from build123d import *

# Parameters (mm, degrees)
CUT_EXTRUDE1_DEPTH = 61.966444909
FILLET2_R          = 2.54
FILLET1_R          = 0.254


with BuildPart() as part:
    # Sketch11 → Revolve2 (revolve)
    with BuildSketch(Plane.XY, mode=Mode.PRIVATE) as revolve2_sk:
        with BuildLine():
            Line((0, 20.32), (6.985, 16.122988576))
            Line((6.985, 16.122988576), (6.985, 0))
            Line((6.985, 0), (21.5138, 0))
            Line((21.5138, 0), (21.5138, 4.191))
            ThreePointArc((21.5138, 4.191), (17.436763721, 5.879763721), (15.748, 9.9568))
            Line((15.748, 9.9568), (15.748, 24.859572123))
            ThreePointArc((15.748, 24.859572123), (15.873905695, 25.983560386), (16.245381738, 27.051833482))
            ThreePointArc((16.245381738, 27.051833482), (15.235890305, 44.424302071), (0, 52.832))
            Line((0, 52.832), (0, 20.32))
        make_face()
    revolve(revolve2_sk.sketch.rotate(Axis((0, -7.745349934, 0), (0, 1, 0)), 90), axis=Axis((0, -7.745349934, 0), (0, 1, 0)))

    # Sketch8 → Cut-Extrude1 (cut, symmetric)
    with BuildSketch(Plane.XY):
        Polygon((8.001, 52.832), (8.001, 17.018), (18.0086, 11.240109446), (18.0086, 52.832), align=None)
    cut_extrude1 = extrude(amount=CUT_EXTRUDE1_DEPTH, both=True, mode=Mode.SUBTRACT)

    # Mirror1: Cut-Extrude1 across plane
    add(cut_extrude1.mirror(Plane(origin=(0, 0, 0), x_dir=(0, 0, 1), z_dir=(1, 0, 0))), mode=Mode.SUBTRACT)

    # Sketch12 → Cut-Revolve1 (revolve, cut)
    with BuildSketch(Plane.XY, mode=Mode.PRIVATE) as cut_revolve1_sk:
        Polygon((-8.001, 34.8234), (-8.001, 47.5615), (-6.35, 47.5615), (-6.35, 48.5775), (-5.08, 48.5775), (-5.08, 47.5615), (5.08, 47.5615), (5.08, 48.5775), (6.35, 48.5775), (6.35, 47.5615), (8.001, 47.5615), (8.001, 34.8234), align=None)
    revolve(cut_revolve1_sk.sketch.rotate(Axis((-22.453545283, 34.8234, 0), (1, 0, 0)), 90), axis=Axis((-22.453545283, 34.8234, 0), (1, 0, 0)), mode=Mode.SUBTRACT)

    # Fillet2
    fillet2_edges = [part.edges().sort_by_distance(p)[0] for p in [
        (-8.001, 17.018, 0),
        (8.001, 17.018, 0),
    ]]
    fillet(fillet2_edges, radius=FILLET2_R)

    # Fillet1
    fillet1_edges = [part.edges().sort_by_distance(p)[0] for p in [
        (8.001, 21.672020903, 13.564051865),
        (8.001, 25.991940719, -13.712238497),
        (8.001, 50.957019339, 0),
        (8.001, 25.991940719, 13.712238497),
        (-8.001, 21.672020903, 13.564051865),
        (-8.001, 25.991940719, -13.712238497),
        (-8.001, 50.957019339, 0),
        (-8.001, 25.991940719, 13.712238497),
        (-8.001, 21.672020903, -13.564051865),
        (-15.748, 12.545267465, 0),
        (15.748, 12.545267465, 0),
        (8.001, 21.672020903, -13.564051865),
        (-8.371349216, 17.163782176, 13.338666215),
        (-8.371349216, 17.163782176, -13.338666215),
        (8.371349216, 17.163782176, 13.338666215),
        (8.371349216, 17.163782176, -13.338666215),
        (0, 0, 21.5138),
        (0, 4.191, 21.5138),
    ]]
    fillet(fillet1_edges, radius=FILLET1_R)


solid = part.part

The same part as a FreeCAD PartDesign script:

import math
import FreeCAD as App
import Part
import Sketcher
Q = App.Units.Quantity


def edges_at(feature, points):
    """Names of the edges that pass closest to the given points."""
    edges = feature.Shape.Edges
    near = lambda p: min(range(len(edges)), key=lambda i: edges[i].distToShape(Part.Vertex(*p))[0])
    return sorted({f"Edge{near(p) + 1}" for p in points})

doc = App.newDocument("Part")
body = doc.addObject("PartDesign::Body", "Body")

sketch1 = body.newObject("Sketcher::SketchObject", "Sketch")
sketch1.AttachmentSupport = (doc.getObject("XY_Plane"), [""])
sketch1.MapMode = "FlatFace"
sketch1.addGeometry([
    Part.LineSegment(App.Vector(0, 20.32, 0), App.Vector(6.985, 16.122989, 0)),
    Part.LineSegment(App.Vector(6.985, 16.122989, 0), App.Vector(6.985, 0, 0)),
    Part.LineSegment(App.Vector(6.985, 0, 0), App.Vector(21.5138, 0, 0)),
    Part.LineSegment(App.Vector(21.5138, 0, 0), App.Vector(21.5138, 4.191, 0)),
    Part.ArcOfCircle(Part.Circle(App.Vector(21.5138, 9.9568, 0), App.Vector(0, 0, 1), 5.7658), math.radians(180), math.radians(270)),
    Part.LineSegment(App.Vector(15.748, 9.9568, 0), App.Vector(15.748, 24.859572, 0)),
    Part.ArcOfCircle(Part.Circle(App.Vector(20.828, 24.859572, 0), App.Vector(0, 0, 1), 5.08), math.radians(154.434191), math.radians(180)),
    Part.ArcOfCircle(Part.Circle(App.Vector(0, 34.8234, 0), App.Vector(0, 0, 1), 18.0086), math.radians(-25.565809), math.radians(90)),
    Part.LineSegment(App.Vector(0, 52.832, 0), App.Vector(0, 20.32, 0)),
], False)
sketch1.addConstraint([
    Sketcher.Constraint("Coincident", 0, 2, 1, 1),
    Sketcher.Constraint("Coincident", 1, 2, 2, 1),
    Sketcher.Constraint("Coincident", 2, 2, 3, 1),
    Sketcher.Constraint("Coincident", 3, 2, 4, 2),
    Sketcher.Constraint("Tangent", 4, 1, 5, 1),
    Sketcher.Constraint("Tangent", 5, 2, 6, 2),
    Sketcher.Constraint("Tangent", 6, 1, 7, 1),
    Sketcher.Constraint("Coincident", 7, 2, 8, 1),
    Sketcher.Constraint("Coincident", 8, 2, 0, 1),
    Sketcher.Constraint("Vertical", 1),
    Sketcher.Constraint("Horizontal", 2),
    Sketcher.Constraint("Vertical", 3),
    Sketcher.Constraint("Vertical", 5),
    Sketcher.Constraint("Vertical", 8),
    Sketcher.Constraint("PointOnObject", 7, 3, -2),
    Sketcher.Constraint("PointOnObject", 1, 2, -1),
    Sketcher.Constraint("PointOnObject", 7, 2, -2),
    Sketcher.Constraint("Vertical", 4, 3, 2, 2),
    Sketcher.Constraint("Radius", 6, Q("0.2 in")),
    Sketcher.Constraint("Angle", 0, Q("-31 deg")),
    Sketcher.Constraint("Radius", 4, Q("0.227 in")),
    Sketcher.Constraint("Radius", 7, Q("0.709 in")),
    Sketcher.Constraint("DistanceY", 8, 2, 8, 1, Q("1.28 in")),
    Sketcher.Constraint("DistanceY", -1, 1, 8, 2, Q("0.8 in")),
    Sketcher.Constraint("DistanceX", 2, 1, 2, 2, Q("0.572 in")),
    Sketcher.Constraint("DistanceY", 3, 1, 3, 2, Q("0.165 in")),
    Sketcher.Constraint("DistanceX", -1, 1, 6, 3, Q("0.82 in")),
])
revolution = body.newObject("PartDesign::Revolution", "Revolution")
revolution.Profile = sketch1
revolution.ReferenceAxis = (sketch1, ["V_Axis"])
revolution.Angle = 360

sketch2 = body.newObject("Sketcher::SketchObject", "Sketch001")
sketch2.AttachmentSupport = (doc.getObject("XY_Plane"), [""])
sketch2.MapMode = "FlatFace"
sketch2.addGeometry([
    Part.LineSegment(App.Vector(8.001, 52.832, 0), App.Vector(8.001, 17.018, 0)),
    Part.LineSegment(App.Vector(8.001, 17.018, 0), App.Vector(18.0086, 11.240109, 0)),
    Part.LineSegment(App.Vector(18.0086, 11.240109, 0), App.Vector(18.0086, 52.832, 0)),
    Part.LineSegment(App.Vector(18.0086, 52.832, 0), App.Vector(8.001, 52.832, 0)),
], False)
sketch2.addConstraint([
    Sketcher.Constraint("Coincident", 0, 2, 1, 1),
    Sketcher.Constraint("Coincident", 1, 2, 2, 1),
    Sketcher.Constraint("Coincident", 2, 2, 3, 1),
    Sketcher.Constraint("Coincident", 3, 2, 0, 1),
    Sketcher.Constraint("Vertical", 0),
    Sketcher.Constraint("Vertical", 2),
    Sketcher.Constraint("Horizontal", 3),
    Sketcher.Constraint("Angle", 1, Q("-30 deg")),
    Sketcher.Constraint("DistanceY", 0, 2, 0, 1, Q("1.41 in")),
    Sketcher.Constraint("DistanceX", 3, 2, 3, 1, Q("0.394 in")),
    Sketcher.Constraint("DistanceY", -1, 1, 0, 2, Q("0.67 in")),
    Sketcher.Constraint("DistanceX", -1, 1, 0, 2, Q("0.315 in")),
])
pocket1 = body.newObject("PartDesign::Pocket", "Pocket")
pocket1.Profile = sketch2
pocket1.Length = 123.93289
pocket1.Midplane = True
doc.recompute()

mirrored = body.newObject("PartDesign::Mirrored", "Mirrored")
mirrored.Originals = [pocket1]
mirrored.MirrorPlane = (doc.getObject("YZ_Plane"), [""])
body.Tip = mirrored

sketch3 = body.newObject("Sketcher::SketchObject", "Sketch002")
sketch3.AttachmentSupport = (doc.getObject("XY_Plane"), [""])
sketch3.MapMode = "FlatFace"
sketch3.addGeometry([
    Part.LineSegment(App.Vector(-8.001, 47.5615, 0), App.Vector(-8.001, 34.8234, 0)),
    Part.LineSegment(App.Vector(-8.001, 34.8234, 0), App.Vector(8.001, 34.8234, 0)),
    Part.LineSegment(App.Vector(8.001, 34.8234, 0), App.Vector(8.001, 47.5615, 0)),
    Part.LineSegment(App.Vector(8.001, 47.5615, 0), App.Vector(6.35, 47.5615, 0)),
    Part.LineSegment(App.Vector(6.35, 47.5615, 0), App.Vector(6.35, 48.5775, 0)),
    Part.LineSegment(App.Vector(6.35, 48.5775, 0), App.Vector(5.08, 48.5775, 0)),
    Part.LineSegment(App.Vector(5.08, 48.5775, 0), App.Vector(5.08, 47.5615, 0)),
    Part.LineSegment(App.Vector(5.08, 47.5615, 0), App.Vector(-5.08, 47.5615, 0)),
    Part.LineSegment(App.Vector(-5.08, 47.5615, 0), App.Vector(-5.08, 48.5775, 0)),
    Part.LineSegment(App.Vector(-5.08, 48.5775, 0), App.Vector(-6.35, 48.5775, 0)),
    Part.LineSegment(App.Vector(-6.35, 48.5775, 0), App.Vector(-6.35, 47.5615, 0)),
    Part.LineSegment(App.Vector(-6.35, 47.5615, 0), App.Vector(-8.001, 47.5615, 0)),
], False)
sketch3.addGeometry(Part.LineSegment(App.Vector(-8.001, 34.8234, 0), App.Vector(8.001, 34.8234, 0)), True)
sketch3.addConstraint([
    Sketcher.Constraint("Coincident", 0, 2, 1, 1),
    Sketcher.Constraint("Coincident", 1, 2, 2, 1),
    Sketcher.Constraint("Coincident", 2, 2, 3, 1),
    Sketcher.Constraint("Coincident", 3, 2, 4, 1),
    Sketcher.Constraint("Coincident", 4, 2, 5, 1),
    Sketcher.Constraint("Coincident", 5, 2, 6, 1),
    Sketcher.Constraint("Coincident", 6, 2, 7, 1),
    Sketcher.Constraint("Coincident", 7, 2, 8, 1),
    Sketcher.Constraint("Coincident", 8, 2, 9, 1),
    Sketcher.Constraint("Coincident", 9, 2, 10, 1),
    Sketcher.Constraint("Coincident", 10, 2, 11, 1),
    Sketcher.Constraint("Coincident", 11, 2, 0, 1),
    Sketcher.Constraint("Vertical", 0),
    Sketcher.Constraint("Horizontal", 1),
    Sketcher.Constraint("Vertical", 2),
    Sketcher.Constraint("Horizontal", 3),
    Sketcher.Constraint("Vertical", 4),
    Sketcher.Constraint("Horizontal", 5),
    Sketcher.Constraint("Vertical", 6),
    Sketcher.Constraint("Horizontal", 7),
    Sketcher.Constraint("Vertical", 8),
    Sketcher.Constraint("Horizontal", 9),
    Sketcher.Constraint("Vertical", 10),
    Sketcher.Constraint("Horizontal", 11),
    Sketcher.Constraint("Horizontal", 12),
    Sketcher.Constraint("Coincident", 12, 1, 0, 2),
    Sketcher.Constraint("Symmetric", 5, 2, 8, 2, -2),
    Sketcher.Constraint("Symmetric", 3, 2, 10, 2, -2),
    Sketcher.Constraint("Horizontal", 3, 2, 6, 2),
    Sketcher.Constraint("Vertical", 2, 2, 12, 2),
    Sketcher.Constraint("Equal", 3, 11),
    Sketcher.Constraint("DistanceX", 7, 2, 7, 1, Q("0.4 in")),
    Sketcher.Constraint("DistanceX", 1, 1, 1, 2, Q("0.63 in")),
    Sketcher.Constraint("DistanceX", 5, 2, 5, 1, Q("0.05 in")),
    Sketcher.Constraint("DistanceY", 4, 1, 4, 2, Q("0.04 in")),
    Sketcher.Constraint("DistanceY", 0, 2, 0, 1, Q("0.5015 in")),
    Sketcher.Constraint("DistanceY", -1, 1, 0, 2, Q("1.371 in")),
])
groove = body.newObject("PartDesign::Groove", "Groove")
groove.Profile = sketch3
groove.ReferenceAxis = (sketch3, ["Axis0"])
groove.Angle = 360
doc.recompute()

fillet = body.newObject("PartDesign::Fillet", "Fillet")
fillet.Base = (groove, edges_at(groove, [(-8.001, 17.018, 0), (8.001, 17.018, 0)]))
fillet.Radius = Q("0.1 in")
doc.recompute()

fillet2 = body.newObject("PartDesign::Fillet", "Fillet001")
fillet2.Base = (fillet, edges_at(fillet, [
    (8.001, 21.672, 13.564),
    (8.001, 25.992, -13.712),
    (8.001, 50.957, 0),
    (8.001, 25.992, 13.712),
    (-8.001, 21.672, 13.564),
    (-8.001, 25.992, -13.712),
    (-8.001, 50.957, 0),
    (-8.001, 25.992, 13.712),
    (-8.001, 21.672, -13.564),
    (-15.748, 12.545, 0),
    (15.748, 12.545, 0),
    (8.001, 21.672, -13.564),
    (-8.371, 17.164, 13.339),
    (-8.371, 17.164, -13.339),
    (8.371, 17.164, 13.339),
    (8.371, 17.164, -13.339),
    (0, 0, 21.514),
    (0, 4.191, 21.514),
]))
fillet2.Radius = Q("0.01 in")

doc.recompute()
